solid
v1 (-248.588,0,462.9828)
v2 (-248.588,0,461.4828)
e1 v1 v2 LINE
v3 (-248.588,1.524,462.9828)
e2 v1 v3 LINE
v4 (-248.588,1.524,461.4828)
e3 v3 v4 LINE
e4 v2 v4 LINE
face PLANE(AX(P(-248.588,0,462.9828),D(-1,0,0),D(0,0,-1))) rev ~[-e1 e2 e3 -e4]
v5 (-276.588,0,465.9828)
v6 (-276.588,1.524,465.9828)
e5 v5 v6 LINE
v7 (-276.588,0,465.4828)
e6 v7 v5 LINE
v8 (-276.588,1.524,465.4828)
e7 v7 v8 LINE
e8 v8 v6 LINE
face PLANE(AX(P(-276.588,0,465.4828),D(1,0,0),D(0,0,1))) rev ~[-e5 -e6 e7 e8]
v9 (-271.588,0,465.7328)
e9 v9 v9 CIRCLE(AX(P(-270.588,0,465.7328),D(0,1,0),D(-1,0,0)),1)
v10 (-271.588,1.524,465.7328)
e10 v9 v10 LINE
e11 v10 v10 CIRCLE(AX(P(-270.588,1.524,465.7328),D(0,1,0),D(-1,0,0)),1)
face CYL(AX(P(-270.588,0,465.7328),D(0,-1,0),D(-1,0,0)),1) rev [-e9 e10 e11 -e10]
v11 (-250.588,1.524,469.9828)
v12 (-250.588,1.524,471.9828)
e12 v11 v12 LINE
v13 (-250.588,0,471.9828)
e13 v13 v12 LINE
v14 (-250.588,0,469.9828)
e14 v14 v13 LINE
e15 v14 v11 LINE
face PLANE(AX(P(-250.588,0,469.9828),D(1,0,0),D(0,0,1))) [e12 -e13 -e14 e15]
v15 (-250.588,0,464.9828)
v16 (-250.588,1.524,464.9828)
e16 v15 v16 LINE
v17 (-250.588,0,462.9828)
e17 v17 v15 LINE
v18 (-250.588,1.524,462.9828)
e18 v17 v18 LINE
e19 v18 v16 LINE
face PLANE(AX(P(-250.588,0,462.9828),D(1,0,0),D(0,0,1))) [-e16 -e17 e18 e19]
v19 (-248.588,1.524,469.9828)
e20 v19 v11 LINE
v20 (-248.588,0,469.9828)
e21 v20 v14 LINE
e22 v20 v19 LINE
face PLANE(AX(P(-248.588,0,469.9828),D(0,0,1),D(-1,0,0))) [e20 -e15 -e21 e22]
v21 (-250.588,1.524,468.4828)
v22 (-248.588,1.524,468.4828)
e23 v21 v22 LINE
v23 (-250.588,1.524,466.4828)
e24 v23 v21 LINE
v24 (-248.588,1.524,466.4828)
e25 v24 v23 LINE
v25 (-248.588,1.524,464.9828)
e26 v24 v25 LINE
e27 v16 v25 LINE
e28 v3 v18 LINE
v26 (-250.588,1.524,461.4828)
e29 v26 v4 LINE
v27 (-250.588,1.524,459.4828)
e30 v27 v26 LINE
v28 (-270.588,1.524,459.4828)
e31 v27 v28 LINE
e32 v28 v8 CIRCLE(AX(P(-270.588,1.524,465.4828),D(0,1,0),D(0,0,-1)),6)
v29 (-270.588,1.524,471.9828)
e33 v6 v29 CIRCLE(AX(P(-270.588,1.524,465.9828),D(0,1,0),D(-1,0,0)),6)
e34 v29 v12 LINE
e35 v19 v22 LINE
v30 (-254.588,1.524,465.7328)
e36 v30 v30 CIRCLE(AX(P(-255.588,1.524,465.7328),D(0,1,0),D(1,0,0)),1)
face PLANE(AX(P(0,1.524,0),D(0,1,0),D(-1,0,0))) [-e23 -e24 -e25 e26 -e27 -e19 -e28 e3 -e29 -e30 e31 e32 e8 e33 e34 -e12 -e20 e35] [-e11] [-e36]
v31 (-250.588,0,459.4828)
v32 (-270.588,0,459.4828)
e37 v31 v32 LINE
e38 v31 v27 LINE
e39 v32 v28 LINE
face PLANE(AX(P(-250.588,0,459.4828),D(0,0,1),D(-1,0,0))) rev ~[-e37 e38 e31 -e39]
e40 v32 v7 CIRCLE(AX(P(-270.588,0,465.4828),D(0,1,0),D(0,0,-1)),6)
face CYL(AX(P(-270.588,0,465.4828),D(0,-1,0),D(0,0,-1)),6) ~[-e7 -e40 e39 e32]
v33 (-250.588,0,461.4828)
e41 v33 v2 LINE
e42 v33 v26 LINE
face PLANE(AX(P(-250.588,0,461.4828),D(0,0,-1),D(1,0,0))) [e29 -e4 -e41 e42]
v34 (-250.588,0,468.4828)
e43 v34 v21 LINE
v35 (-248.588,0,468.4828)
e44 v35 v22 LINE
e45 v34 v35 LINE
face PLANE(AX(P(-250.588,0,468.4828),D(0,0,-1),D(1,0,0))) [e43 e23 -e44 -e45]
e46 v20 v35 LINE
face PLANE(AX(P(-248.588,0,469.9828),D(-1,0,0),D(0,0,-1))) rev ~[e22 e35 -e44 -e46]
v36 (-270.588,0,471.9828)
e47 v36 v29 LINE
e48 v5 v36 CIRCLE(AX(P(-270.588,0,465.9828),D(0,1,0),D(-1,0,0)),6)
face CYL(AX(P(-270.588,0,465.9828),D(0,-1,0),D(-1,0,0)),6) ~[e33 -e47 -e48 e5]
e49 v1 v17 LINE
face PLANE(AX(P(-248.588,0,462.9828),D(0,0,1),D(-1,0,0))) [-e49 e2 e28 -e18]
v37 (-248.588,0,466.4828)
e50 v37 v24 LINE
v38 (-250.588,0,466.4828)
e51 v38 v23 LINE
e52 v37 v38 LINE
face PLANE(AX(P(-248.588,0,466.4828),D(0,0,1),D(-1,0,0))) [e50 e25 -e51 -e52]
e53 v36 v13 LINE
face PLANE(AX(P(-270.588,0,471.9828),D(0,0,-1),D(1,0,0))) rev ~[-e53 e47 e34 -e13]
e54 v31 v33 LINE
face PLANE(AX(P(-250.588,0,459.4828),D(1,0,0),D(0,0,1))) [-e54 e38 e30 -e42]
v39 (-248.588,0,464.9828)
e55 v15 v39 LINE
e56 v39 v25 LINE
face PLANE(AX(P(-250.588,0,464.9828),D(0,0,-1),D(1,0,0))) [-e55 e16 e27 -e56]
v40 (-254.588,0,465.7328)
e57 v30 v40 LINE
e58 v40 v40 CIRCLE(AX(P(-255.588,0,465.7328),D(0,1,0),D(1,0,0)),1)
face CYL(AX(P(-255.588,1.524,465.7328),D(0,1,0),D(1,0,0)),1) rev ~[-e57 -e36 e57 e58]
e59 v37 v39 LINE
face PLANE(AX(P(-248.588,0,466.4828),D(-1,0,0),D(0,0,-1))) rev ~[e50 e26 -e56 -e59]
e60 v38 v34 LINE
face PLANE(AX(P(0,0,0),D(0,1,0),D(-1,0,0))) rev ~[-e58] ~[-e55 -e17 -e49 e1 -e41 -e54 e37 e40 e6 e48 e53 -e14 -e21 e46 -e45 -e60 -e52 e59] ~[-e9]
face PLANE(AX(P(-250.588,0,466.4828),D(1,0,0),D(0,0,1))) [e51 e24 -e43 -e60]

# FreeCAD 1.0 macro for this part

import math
import FreeCAD as App
import Part
import Sketcher

V = App.Vector
Q = App.Units.Quantity

doc = App.newDocument("Part")
body = doc.addObject("PartDesign::Body", "Body")

# Sketch on XZ plane
sketch1 = body.newObject("Sketcher::SketchObject", "Sketch")
sketch1.AttachmentSupport = (doc.getObject("XZ_Plane"), [""])
sketch1.MapMode = "FlatFace"
sketch1.addGeometry([
    Part.ArcOfCircle(Part.Circle(V(-270.588, 465.9828, 0), V(0, 0, 1), 6), math.radians(90), math.radians(180)),  # 0
    Part.LineSegment(V(-270.588, 471.9828, 0), V(-250.588, 471.9828, 0)),  # 1
    Part.LineSegment(V(-250.588, 471.9828, 0), V(-250.588, 469.9828, 0)),  # 2
    Part.LineSegment(V(-250.588, 469.9828, 0), V(-248.588, 469.9828, 0)),  # 3
    Part.LineSegment(V(-248.588, 469.9828, 0), V(-248.588, 468.4828, 0)),  # 4
    Part.LineSegment(V(-248.588, 468.4828, 0), V(-250.588, 468.4828, 0)),  # 5
    Part.LineSegment(V(-250.588, 468.4828, 0), V(-250.588, 466.4828, 0)),  # 6
    Part.LineSegment(V(-250.588, 466.4828, 0), V(-248.588, 466.4828, 0)),  # 7
    Part.LineSegment(V(-248.588, 466.4828, 0), V(-248.588, 464.9828, 0)),  # 8
    Part.LineSegment(V(-248.588, 464.9828, 0), V(-250.588, 464.9828, 0)),  # 9
    Part.LineSegment(V(-250.588, 464.9828, 0), V(-250.588, 462.9828, 0)),  # 10
    Part.LineSegment(V(-250.588, 462.9828, 0), V(-248.588, 462.9828, 0)),  # 11
    Part.LineSegment(V(-248.588, 462.9828, 0), V(-248.588, 461.4828, 0)),  # 12
    Part.LineSegment(V(-248.588, 461.4828, 0), V(-250.588, 461.4828, 0)),  # 13
    Part.LineSegment(V(-250.588, 461.4828, 0), V(-250.588, 459.4828, 0)),  # 14
    Part.LineSegment(V(-250.588, 459.4828, 0), V(-270.588, 459.4828, 0)),  # 15
    Part.ArcOfCircle(Part.Circle(V(-270.588, 465.4828, 0), V(0, 0, 1), 6), math.radians(180), math.radians(270)),  # 16
    Part.LineSegment(V(-276.588, 465.4828, 0), V(-276.588, 465.9828, 0)),  # 17
    Part.Circle(V(-270.588, 465.7328, 0), V(0, 0, 1), 1),  # 18
], False)
sketch1.addConstraint([
    Sketcher.Constraint("Tangent", 0, 1, 1, 1),
    Sketcher.Constraint("Coincident", 1, 2, 2, 1),
    Sketcher.Constraint("Coincident", 2, 2, 3, 1),
    Sketcher.Constraint("Coincident", 3, 2, 4, 1),
    Sketcher.Constraint("Coincident", 4, 2, 5, 1),
    Sketcher.Constraint("Coincident", 5, 2, 6, 1),
    Sketcher.Constraint("Coincident", 6, 2, 7, 1),
    Sketcher.Constraint("Coincident", 7, 2, 8, 1),
    Sketcher.Constraint("Coincident", 8, 2, 9, 1),
    Sketcher.Constraint("Coincident", 9, 2, 10, 1),
    Sketcher.Constraint("Coincident", 10, 2, 11, 1),
    Sketcher.Constraint("Coincident", 11, 2, 12, 1),
    Sketcher.Constraint("Coincident", 12, 2, 13, 1),
    Sketcher.Constraint("Coincident", 13, 2, 14, 1),
    Sketcher.Constraint("Coincident", 14, 2, 15, 1),
    Sketcher.Constraint("Tangent", 15, 2, 16, 2),
    Sketcher.Constraint("Tangent", 16, 1, 17, 1),
    Sketcher.Constraint("Tangent", 17, 2, 0, 2),
    Sketcher.Constraint("Horizontal", 1),
    Sketcher.Constraint("Vertical", 2),
    Sketcher.Constraint("Horizontal", 3),
    Sketcher.Constraint("Vertical", 4),
    Sketcher.Constraint("Horizontal", 5),
    Sketcher.Constraint("Vertical", 6),
    Sketcher.Constraint("Horizontal", 7),
    Sketcher.Constraint("Vertical", 8),
    Sketcher.Constraint("Horizontal", 9),
    Sketcher.Constraint("Vertical", 10),
    Sketcher.Constraint("Horizontal", 11),
    Sketcher.Constraint("Vertical", 12),
    Sketcher.Constraint("Horizontal", 13),
    Sketcher.Constraint("Vertical", 14),
    Sketcher.Constraint("Horizontal", 15),
    Sketcher.Constraint("Vertical", 17),
    Sketcher.Constraint("Equal", 0, 16),
    Sketcher.Constraint("Vertical", 16, 3, 18, 3),
    Sketcher.Constraint("Vertical", 2, 2, 5, 2),
    Sketcher.Constraint("Vertical", 4, 2, 7, 2),
    Sketcher.Constraint("Vertical", 6, 2, 9, 2),
    Sketcher.Constraint("Vertical", 8, 2, 11, 2),
    Sketcher.Constraint("Vertical", 10, 2, 13, 2),
    Sketcher.Constraint("Equal", 13, 2),
    Sketcher.Constraint("Equal", 2, 6),
    Sketcher.Constraint("Equal", 4, 8),
    Sketcher.Constraint("Equal", 6, 10),
    Sketcher.Constraint("Equal", 8, 12),
    Sketcher.Constraint("Equal", 10, 14),
    Sketcher.Constraint("Diameter", 18, Q("2 mm")),
    Sketcher.Constraint("Radius", 0, Q("6 mm")),
    Sketcher.Constraint("DistanceX", 1, 1, 1, 2, Q("20 mm")),
    Sketcher.Constraint("DistanceX", 3, 1, 3, 2, Q("2 mm")),
    Sketcher.Constraint("DistanceY", 4, 2, 4, 1, Q("1.5 mm")),
    Sketcher.Constraint("DistanceY", 18, 3, 0, 3, Q("0.25 mm")),
    Sketcher.Constraint("DistanceX", 0, 3, -1, 1, Q("270.588 mm")),
    Sketcher.Constraint("DistanceY", -1, 1, 0, 3, Q("465.9828 mm")),
])
pad1 = body.newObject("PartDesign::Pad", "Pad")
pad1.Profile = sketch1
pad1.Length = 1.524
pad1.Reversed = True

# Sketch on XZ plane
sketch2 = body.newObject("Sketcher::SketchObject", "Sketch001")
sketch2.AttachmentSupport = (doc.getObject("XZ_Plane"), [""])
sketch2.MapMode = "FlatFace"
sketch2.AttachmentOffset = App.Placement(V(0, 0, -1.524), App.Rotation())
sketch2.addGeometry(Part.Circle(V(-255.588, 465.7328, 0), V(0, 0, 1), 1), False)
sketch2.addConstraint([
    Sketcher.Constraint("Diameter", 0, Q("2 mm")),
    Sketcher.Constraint("DistanceX", 0, 3, -1, 1, Q("255.588 mm")),
    Sketcher.Constraint("DistanceY", -1, 1, 0, 3, Q("465.7328 mm")),
])
pocket1 = body.newObject("PartDesign::Pocket", "Pocket")
pocket1.Profile = sketch2
pocket1.Length = 10
pocket1.Reversed = True

doc.recompute()
